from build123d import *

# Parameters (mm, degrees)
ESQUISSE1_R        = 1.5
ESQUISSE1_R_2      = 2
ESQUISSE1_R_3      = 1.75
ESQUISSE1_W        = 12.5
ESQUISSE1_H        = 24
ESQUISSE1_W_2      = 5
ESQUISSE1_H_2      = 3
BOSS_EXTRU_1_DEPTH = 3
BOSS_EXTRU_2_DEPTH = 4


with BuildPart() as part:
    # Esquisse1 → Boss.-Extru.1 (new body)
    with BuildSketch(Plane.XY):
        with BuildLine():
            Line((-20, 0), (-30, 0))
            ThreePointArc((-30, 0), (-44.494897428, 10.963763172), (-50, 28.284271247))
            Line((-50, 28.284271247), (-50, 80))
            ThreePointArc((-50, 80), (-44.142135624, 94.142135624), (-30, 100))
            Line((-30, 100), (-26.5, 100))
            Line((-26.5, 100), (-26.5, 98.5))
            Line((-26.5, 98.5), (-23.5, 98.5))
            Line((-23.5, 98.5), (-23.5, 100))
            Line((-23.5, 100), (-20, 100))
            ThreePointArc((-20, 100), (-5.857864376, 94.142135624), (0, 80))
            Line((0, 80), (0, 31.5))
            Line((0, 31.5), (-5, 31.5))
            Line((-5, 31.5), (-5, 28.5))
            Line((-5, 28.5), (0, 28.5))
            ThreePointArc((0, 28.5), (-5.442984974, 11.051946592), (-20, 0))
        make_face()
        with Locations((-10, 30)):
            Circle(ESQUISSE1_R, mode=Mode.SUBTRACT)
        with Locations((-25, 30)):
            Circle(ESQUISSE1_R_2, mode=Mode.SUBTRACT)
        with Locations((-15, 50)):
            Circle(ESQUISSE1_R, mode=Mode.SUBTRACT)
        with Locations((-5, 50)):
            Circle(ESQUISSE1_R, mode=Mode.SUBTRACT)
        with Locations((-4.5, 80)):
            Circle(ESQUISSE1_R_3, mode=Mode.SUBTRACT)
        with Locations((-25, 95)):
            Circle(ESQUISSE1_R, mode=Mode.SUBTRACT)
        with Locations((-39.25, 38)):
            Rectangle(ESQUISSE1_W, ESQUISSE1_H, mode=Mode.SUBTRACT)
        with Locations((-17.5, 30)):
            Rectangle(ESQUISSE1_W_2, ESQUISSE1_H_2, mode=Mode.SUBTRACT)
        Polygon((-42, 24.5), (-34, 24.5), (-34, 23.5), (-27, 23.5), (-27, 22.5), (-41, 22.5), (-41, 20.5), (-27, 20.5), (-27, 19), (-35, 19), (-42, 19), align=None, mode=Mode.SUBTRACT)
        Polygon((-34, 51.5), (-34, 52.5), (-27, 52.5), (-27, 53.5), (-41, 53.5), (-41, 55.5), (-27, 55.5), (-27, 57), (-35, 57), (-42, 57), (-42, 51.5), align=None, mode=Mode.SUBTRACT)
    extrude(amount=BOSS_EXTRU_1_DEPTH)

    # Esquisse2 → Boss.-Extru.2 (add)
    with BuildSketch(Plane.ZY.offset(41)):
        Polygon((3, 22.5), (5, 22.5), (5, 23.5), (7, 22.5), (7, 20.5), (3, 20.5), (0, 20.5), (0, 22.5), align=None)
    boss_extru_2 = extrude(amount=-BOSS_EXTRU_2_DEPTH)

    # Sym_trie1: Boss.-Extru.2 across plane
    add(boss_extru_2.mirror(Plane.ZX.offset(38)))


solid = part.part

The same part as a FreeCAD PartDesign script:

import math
import FreeCAD as App
import Part
import Sketcher
from FreeCAD import Vector
Q = App.Units.Quantity

doc = App.newDocument("Part")
body = doc.addObject("PartDesign::Body", "Body")

sketch1 = body.newObject("Sketcher::SketchObject", "Sketch")
sketch1.AttachmentSupport = (doc.getObject("XY_Plane"), [""])
sketch1.MapMode = "FlatFace"
sketch1.addGeometry(Part.LineSegment(Vector(-30, 0, 0), Vector(-20, 0, 0)), False)
sketch1.addGeometry(Part.ArcOfCircle(Part.Circle(Vector(-30.001327, 28.286019, 0), Vector(0, 0, 1), 30.00209), math.radians(-70.527503), math.radians(0.408649)), False)
sketch1.addGeometry(Part.LineSegment(Vector(0, 28.5, 0), Vector(-5, 28.5, 0)), False)
sketch1.addGeometry(Part.LineSegment(Vector(-5, 28.5, 0), Vector(-5, 31.5, 0)), False)
sketch1.addGeometry(Part.LineSegment(Vector(-5, 31.5, 0), Vector(0, 31.5, 0)), False)
sketch1.addGeometry(Part.LineSegment(Vector(0, 31.5, 0), Vector(0, 80, 0)), False)
sketch1.addGeometry(Part.ArcOfCircle(Part.Circle(Vector(-20, 80, 0), Vector(0, 0, 1), 20), math.radians(0), math.radians(90)), False)
sketch1.addGeometry(Part.LineSegment(Vector(-20, 100, 0), Vector(-23.5, 100, 0)), False)
sketch1.addGeometry(Part.LineSegment(Vector(-23.5, 100, 0), Vector(-23.5, 98.5, 0)), False)
sketch1.addGeometry(Part.LineSegment(Vector(-23.5, 98.5, 0), Vector(-26.5, 98.5, 0)), False)
sketch1.addGeometry(Part.LineSegment(Vector(-26.5, 98.5, 0), Vector(-26.5, 100, 0)), False)
sketch1.addGeometry(Part.LineSegment(Vector(-26.5, 100, 0), Vector(-30, 100, 0)), False)
sketch1.addGeometry(Part.ArcOfCircle(Part.Circle(Vector(-30, 80, 0), Vector(0, 0, 1), 20), math.radians(90), math.radians(180)), False)
sketch1.addGeometry(Part.LineSegment(Vector(-50, 80, 0), Vector(-50, 28.284271, 0)), False)
sketch1.addGeometry(Part.ArcOfCircle(Part.Circle(Vector(-20, 28.284271, 0), Vector(0, 0, 1), 30), math.radians(180), math.radians(250.528779)), False)
sketch1.addGeometry(Part.Circle(Vector(-10, 30, 0), Vector(0, 0, 1), 1.5), False)
sketch1.addGeometry(Part.LineSegment(Vector(-20, 28.5, 0), Vector(-20, 31.5, 0)), False)
sketch1.addGeometry(Part.LineSegment(Vector(-20, 31.5, 0), Vector(-15, 31.5, 0)), False)
sketch1.addGeometry(Part.LineSegment(Vector(-15, 31.5, 0), Vector(-15, 28.5, 0)), False)
sketch1.addGeometry(Part.LineSegment(Vector(-15, 28.5, 0), Vector(-20, 28.5, 0)), False)
sketch1.addGeometry(Part.Circle(Vector(-5, 50, 0), Vector(0, 0, 1), 1.5), False)
sketch1.addGeometry(Part.Circle(Vector(-15, 50, 0), Vector(0, 0, 1), 1.5), False)
sketch1.addGeometry(Part.LineSegment(Vector(-42, 24.5, 0), Vector(-34, 24.5, 0)), False)
sketch1.addGeometry(Part.LineSegment(Vector(-34, 24.5, 0), Vector(-34, 23.5, 0)), False)
sketch1.addGeometry(Part.LineSegment(Vector(-34, 23.5, 0), Vector(-27, 23.5, 0)), False)
sketch1.addGeometry(Part.LineSegment(Vector(-27, 23.5, 0), Vector(-27, 22.5, 0)), False)
sketch1.addGeometry(Part.LineSegment(Vector(-27, 22.5, 0), Vector(-41, 22.5, 0)), False)
sketch1.addGeometry(Part.LineSegment(Vector(-41, 22.5, 0), Vector(-41, 20.5, 0)), False)
sketch1.addGeometry(Part.LineSegment(Vector(-41, 20.5, 0), Vector(-27, 20.5, 0)), False)
sketch1.addGeometry(Part.LineSegment(Vector(-27, 20.5, 0), Vector(-27, 19, 0)), False)
sketch1.addGeometry(Part.LineSegment(Vector(-27, 19, 0), Vector(-42, 19, 0)), False)
sketch1.addGeometry(Part.LineSegment(Vector(-42, 19, 0), Vector(-42, 24.5, 0)), False)
sketch1.addGeometry(Part.Circle(Vector(-25, 30, 0), Vector(0, 0, 1), 2), False)
sketch1.addGeometry(Part.LineSegment(Vector(-45.5, 26, 0), Vector(-45.5, 50, 0)), False)
sketch1.addGeometry(Part.LineSegment(Vector(-45.5, 50, 0), Vector(-33, 50, 0)), False)
sketch1.addGeometry(Part.LineSegment(Vector(-33, 50, 0), Vector(-33, 26, 0)), False)
sketch1.addGeometry(Part.LineSegment(Vector(-33, 26, 0), Vector(-45.5, 26, 0)), False)
sketch1.addGeometry(Part.LineSegment(Vector(-34, 51.5, 0), Vector(-42, 51.5, 0)), False)
sketch1.addGeometry(Part.LineSegment(Vector(-42, 51.5, 0), Vector(-42, 57, 0)), False)
sketch1.addGeometry(Part.LineSegment(Vector(-42, 57, 0), Vector(-27, 57, 0)), False)
sketch1.addGeometry(Part.LineSegment(Vector(-27, 57, 0), Vector(-27, 55.5, 0)), False)
sketch1.addGeometry(Part.LineSegment(Vector(-27, 55.5, 0), Vector(-41, 55.5, 0)), False)
sketch1.addGeometry(Part.LineSegment(Vector(-41, 55.5, 0), Vector(-41, 53.5, 0)), False)
sketch1.addGeometry(Part.LineSegment(Vector(-41, 53.5, 0), Vector(-27, 53.5, 0)), False)
sketch1.addGeometry(Part.LineSegment(Vector(-27, 53.5, 0), Vector(-27, 52.5, 0)), False)
sketch1.addGeometry(Part.LineSegment(Vector(-27, 52.5, 0), Vector(-34, 52.5, 0)), False)
sketch1.addGeometry(Part.LineSegment(Vector(-34, 52.5, 0), Vector(-34, 51.5, 0)), False)
sketch1.addGeometry(Part.Circle(Vector(-4.5, 80, 0), Vector(0, 0, 1), 1.75), False)
sketch1.addGeometry(Part.Circle(Vector(-25, 95, 0), Vector(0, 0, 1), 1.5), False)
sketch1.addConstraint(Sketcher.Constraint("Coincident", 0, 2, 1, 1))
sketch1.addConstraint(Sketcher.Constraint("Coincident", 1, 2, 2, 1))
sketch1.addConstraint(Sketcher.Constraint("Coincident", 2, 2, 3, 1))
sketch1.addConstraint(Sketcher.Constraint("Coincident", 3, 2, 4, 1))
sketch1.addConstraint(Sketcher.Constraint("Coincident", 4, 2, 5, 1))
sketch1.addConstraint(Sketcher.Constraint("Tangent", 5, 2, 6, 1))
sketch1.addConstraint(Sketcher.Constraint("Tangent", 6, 2, 7, 1))
sketch1.addConstraint(Sketcher.Constraint("Coincident", 7, 2, 8, 1))
sketch1.addConstraint(Sketcher.Constraint("Coincident", 8, 2, 9, 1))
sketch1.addConstraint(Sketcher.Constraint("Coincident", 9, 2, 10, 1))
sketch1.addConstraint(Sketcher.Constraint("Coincident", 10, 2, 11, 1))
sketch1.addConstraint(Sketcher.Constraint("Tangent", 11, 2, 12, 1))
sketch1.addConstraint(Sketcher.Constraint("Tangent", 12, 2, 13, 1))
sketch1.addConstraint(Sketcher.Constraint("Tangent", 13, 2, 14, 1))
sketch1.addConstraint(Sketcher.Constraint("Coincident", 14, 2, 0, 1))
sketch1.addConstraint(Sketcher.Constraint("Coincident", 16, 2, 17, 1))
sketch1.addConstraint(Sketcher.Constraint("Coincident", 17, 2, 18, 1))
sketch1.addConstraint(Sketcher.Constraint("Coincident", 18, 2, 19, 1))
sketch1.addConstraint(Sketcher.Constraint("Coincident", 19, 2, 16, 1))
sketch1.addConstraint(Sketcher.Constraint("Coincident", 22, 2, 23, 1))
sketch1.addConstraint(Sketcher.Constraint("Coincident", 23, 2, 24, 1))
sketch1.addConstraint(Sketcher.Constraint("Coincident", 24, 2, 25, 1))
sketch1.addConstraint(Sketcher.Constraint("Coincident", 25, 2, 26, 1))
sketch1.addConstraint(Sketcher.Constraint("Coincident", 26, 2, 27, 1))
sketch1.addConstraint(Sketcher.Constraint("Coincident", 27, 2, 28, 1))
sketch1.addConstraint(Sketcher.Constraint("Coincident", 28, 2, 29, 1))
sketch1.addConstraint(Sketcher.Constraint("Coincident", 29, 2, 30, 1))
sketch1.addConstraint(Sketcher.Constraint("Coincident", 30, 2, 31, 1))
sketch1.addConstraint(Sketcher.Constraint("Coincident", 31, 2, 22, 1))
sketch1.addConstraint(Sketcher.Constraint("Coincident", 33, 2, 34, 1))
sketch1.addConstraint(Sketcher.Constraint("Coincident", 34, 2, 35, 1))
sketch1.addConstraint(Sketcher.Constraint("Coincident", 35, 2, 36, 1))
sketch1.addConstraint(Sketcher.Constraint("Coincident", 36, 2, 33, 1))
sketch1.addConstraint(Sketcher.Constraint("Coincident", 37, 2, 38, 1))
sketch1.addConstraint(Sketcher.Constraint("Coincident", 38, 2, 39, 1))
sketch1.addConstraint(Sketcher.Constraint("Coincident", 39, 2, 40, 1))
sketch1.addConstraint(Sketcher.Constraint("Coincident", 40, 2, 41, 1))
sketch1.addConstraint(Sketcher.Constraint("Coincident", 41, 2, 42, 1))
sketch1.addConstraint(Sketcher.Constraint("Coincident", 42, 2, 43, 1))
sketch1.addConstraint(Sketcher.Constraint("Coincident", 43, 2, 44, 1))
sketch1.addConstraint(Sketcher.Constraint("Coincident", 44, 2, 45, 1))
sketch1.addConstraint(Sketcher.Constraint("Coincident", 45, 2, 46, 1))
sketch1.addConstraint(Sketcher.Constraint("Coincident", 46, 2, 37, 1))
sketch1.addConstraint(Sketcher.Constraint("Horizontal", 0))
sketch1.addConstraint(Sketcher.Constraint("Horizontal", 2))
sketch1.addConstraint(Sketcher.Constraint("Vertical", 3))
sketch1.addConstraint(Sketcher.Constraint("Horizontal", 4))
sketch1.addConstraint(Sketcher.Constraint("Vertical", 5))
sketch1.addConstraint(Sketcher.Constraint("Horizontal", 7))
sketch1.addConstraint(Sketcher.Constraint("Vertical", 8))
sketch1.addConstraint(Sketcher.Constraint("Horizontal", 9))
sketch1.addConstraint(Sketcher.Constraint("Vertical", 10))
sketch1.addConstraint(Sketcher.Constraint("Horizontal", 11))
sketch1.addConstraint(Sketcher.Constraint("Vertical", 13))
sketch1.addConstraint(Sketcher.Constraint("Vertical", 16))
sketch1.addConstraint(Sketcher.Constraint("Horizontal", 17))
sketch1.addConstraint(Sketcher.Constraint("Vertical", 18))
sketch1.addConstraint(Sketcher.Constraint("Horizontal", 19))
sketch1.addConstraint(Sketcher.Constraint("Horizontal", 22))
sketch1.addConstraint(Sketcher.Constraint("Vertical", 23))
sketch1.addConstraint(Sketcher.Constraint("Horizontal", 24))
sketch1.addConstraint(Sketcher.Constraint("Vertical", 25))
sketch1.addConstraint(Sketcher.Constraint("Horizontal", 26))
sketch1.addConstraint(Sketcher.Constraint("Vertical", 27))
sketch1.addConstraint(Sketcher.Constraint("Horizontal", 28))
sketch1.addConstraint(Sketcher.Constraint("Vertical", 29))
sketch1.addConstraint(Sketcher.Constraint("Horizontal", 30))
sketch1.addConstraint(Sketcher.Constraint("Vertical", 31))
sketch1.addConstraint(Sketcher.Constraint("Vertical", 33))
sketch1.addConstraint(Sketcher.Constraint("Horizontal", 34))
sketch1.addConstraint(Sketcher.Constraint("Vertical", 35))
sketch1.addConstraint(Sketcher.Constraint("Horizontal", 36))
sketch1.addConstraint(Sketcher.Constraint("Horizontal", 37))
sketch1.addConstraint(Sketcher.Constraint("Vertical", 38))
sketch1.addConstraint(Sketcher.Constraint("Horizontal", 39))
sketch1.addConstraint(Sketcher.Constraint("Vertical", 40))
sketch1.addConstraint(Sketcher.Constraint("Horizontal", 41))
sketch1.addConstraint(Sketcher.Constraint("Vertical", 42))
sketch1.addConstraint(Sketcher.Constraint("Horizontal", 43))
sketch1.addConstraint(Sketcher.Constraint("Vertical", 44))
sketch1.addConstraint(Sketcher.Constraint("Horizontal", 45))
sketch1.addConstraint(Sketcher.Constraint("Vertical", 46))
sketch1.addConstraint(Sketcher.Constraint("Equal", 6, 12))
sketch1.addConstraint(Sketcher.Constraint("Equal", 15, 20))
sketch1.addConstraint(Sketcher.Constraint("Equal", 20, 21))
sketch1.addConstraint(Sketcher.Constraint("Equal", 21, 48))
sketch1.addConstraint(Sketcher.Constraint("PointOnObject", 0, 2, -1))
sketch1.addConstraint(Sketcher.Constraint("PointOnObject", 1, 2, -2))
sketch1.addConstraint(Sketcher.Constraint("PointOnObject", 4, 2, -2))
sketch1.addConstraint(Sketcher.Constraint("Horizontal", 6, 3, 12, 3))
sketch1.addConstraint(Sketcher.Constraint("Horizontal", 20, 3, 21, 3))
sketch1.addConstraint(Sketcher.Constraint("Horizontal", 15, 3, 32, 3))
sketch1.addConstraint(Sketcher.Constraint("Horizontal", 12, 3, 47, 3))
sketch1.addConstraint(Sketcher.Constraint("Horizontal", 4, 2, 16, 2))
sketch1.addConstraint(Sketcher.Constraint("Horizontal", 2, 2, 18, 2))
sketch1.addConstraint(Sketcher.Constraint("Horizontal", 21, 3, 33, 2))
sketch1.addConstraint(Sketcher.Constraint("Vertical", 6, 3, 14, 3))
sketch1.addConstraint(Sketcher.Constraint("Vertical", 32, 3, 48, 3))
sketch1.addConstraint(Sketcher.Constraint("Vertical", 14, 3, 0, 2))
sketch1.addConstraint(Sketcher.Constraint("Vertical", 20, 3, 2, 2))
sketch1.addConstraint(Sketcher.Constraint("Vertical", 11, 2, 14, 2))
sketch1.addConstraint(Sketcher.Constraint("Vertical", 6, 2, 16, 2))
sketch1.addConstraint(Sketcher.Constraint("Vertical", 21, 3, 17, 2))
sketch1.addConstraint(Sketcher.Constraint("Vertical", 25, 2, 28, 2))
sketch1.addConstraint(Sketcher.Constraint("Vertical", 31, 2, 37, 2))
sketch1.addConstraint(Sketcher.Constraint("Vertical", 29, 2, 39, 2))
sketch1.addConstraint(Sketcher.Constraint("Vertical", 27, 2, 41, 2))
sketch1.addConstraint(Sketcher.Constraint("Vertical", 40, 2, 43, 2))
sketch1.addConstraint(Sketcher.Constraint("Vertical", 23, 2, 45, 2))
sketch1.addConstraint(Sketcher.Constraint("Equal", 7, 11))
sketch1.addConstraint(Sketcher.Constraint("Equal", 4, 17))
sketch1.addConstraint(Sketcher.Constraint("Equal", 9, 3))
sketch1.addConstraint(Sketcher.Constraint("Equal", 23, 25))
sketch1.addConstraint(Sketcher.Constraint("Equal", 10, 29))
sketch1.addConstraint(Sketcher.Constraint("Equal", 31, 38))
sketch1.addConstraint(Sketcher.Constraint("Equal", 29, 40))
sketch1.addConstraint(Sketcher.Constraint("Equal", 27, 42))
sketch1.addConstraint(Sketcher.Constraint("Equal", 25, 44))
sketch1.addConstraint(Sketcher.Constraint("Diameter", 15, Q("3 mm")))
sketch1.addConstraint(Sketcher.Constraint("Diameter", 32, Q("4 mm")))
sketch1.addConstraint(Sketcher.Constraint("Radius", 6, Q("20 mm")))
sketch1.addConstraint(Sketcher.Constraint("Radius", 14, Q("30 mm")))
sketch1.addConstraint(Sketcher.Constraint("Diameter", 47, Q("3.5 mm")))
sketch1.addConstraint(Sketcher.Constraint("DistanceX", 2, 2, 2, 1, Q("5 mm")))
sketch1.addConstraint(Sketcher.Constraint("DistanceX", 9, 2, 9, 1, Q("3 mm")))
sketch1.addConstraint(Sketcher.Constraint("DistanceX", 22, 1, 22, 2, Q("8 mm")))
sketch1.addConstraint(Sketcher.Constraint("DistanceX", 24, 1, 24, 2, Q("7 mm")))
sketch1.addConstraint(Sketcher.Constraint("DistanceX", 26, 2, 26, 1, Q("14 mm")))
sketch1.addConstraint(Sketcher.Constraint("DistanceY", 23, 2, 23, 1, Q("1 mm")))
sketch1.addConstraint(Sketcher.Constraint("DistanceY", 27, 2, 27, 1, Q("2 mm")))
sketch1.addConstraint(Sketcher.Constraint("DistanceY", 33, 1, 33, 2, Q("24 mm")))
sketch1.addConstraint(Sketcher.Constraint("DistanceX", 34, 1, 34, 2, Q("12.5 mm")))
sketch1.addConstraint(Sketcher.Constraint("DistanceY", 5, 1, 5, 2, Q("48.5 mm")))
sketch1.addConstraint(Sketcher.Constraint("DistanceY", 8, 2, 8, 1, Q("1.5 mm")))
sketch1.addConstraint(Sketcher.Constraint("DistanceY", -1, 1, 6, 3, Q("80 mm")))
sketch1.addConstraint(Sketcher.Constraint("DistanceX", 15, 3, -1, 1, Q("10 mm")))
sketch1.addConstraint(Sketcher.Constraint("DistanceY", -1, 1, 15, 3, Q("30 mm")))
sketch1.addConstraint(Sketcher.Constraint("DistanceY", -1, 1, 20, 3, Q("50 mm")))
sketch1.addConstraint(Sketcher.Constraint("DistanceX", 32, 3, -1, 1, Q("25 mm")))
sketch1.addConstraint(Sketcher.Constraint("DistanceY", -1, 1, 48, 3, Q("95 mm")))
sketch1.addConstraint(Sketcher.Constraint("DistanceX", 22, 2, -1, 1, Q("34 mm")))
sketch1.addConstraint(Sketcher.Constraint("DistanceY", -1, 1, 29, 2, Q("19 mm")))
sketch1.addConstraint(Sketcher.Constraint("DistanceX", 34, 2, -1, 1, Q("33 mm")))
sketch1.addConstraint(Sketcher.Constraint("DistanceY", -1, 1, 38, 2, Q("57 mm")))
sketch1.addConstraint(Sketcher.Constraint("DistanceX", 7, 2, 47, 3, Q("19 mm")))
sketch1.addConstraint(Sketcher.Constraint("Radius", 1, Q("30.00209 mm")))
pad1 = body.newObject("PartDesign::Pad", "Pad")
pad1.Profile = sketch1
pad1.Length = 3

sketch2 = body.newObject("Sketcher::SketchObject", "Sketch001")
sketch2.AttachmentSupport = (doc.getObject("YZ_Plane"), [""])
sketch2.MapMode = "FlatFace"
sketch2.AttachmentOffset = App.Placement(Vector(0, 0, -41), App.Rotation())
sketch2.addGeometry(Part.LineSegment(Vector(22.5, 5, 0), Vector(22.5, 0, 0)), False)
sketch2.addGeometry(Part.LineSegment(Vector(22.5, 0, 0), Vector(20.5, 0, 0)), False)
sketch2.addGeometry(Part.LineSegment(Vector(20.5, 0, 0), Vector(20.5, 7, 0)), False)
sketch2.addGeometry(Part.LineSegment(Vector(20.5, 7, 0), Vector(22.5, 7, 0)), False)
sketch2.addGeometry(Part.LineSegment(Vector(22.5, 7, 0), Vector(23.5, 5, 0)), False)
sketch2.addGeometry(Part.LineSegment(Vector(23.5, 5, 0), Vector(22.5, 5, 0)), False)
sketch2.addConstraint(Sketcher.Constraint("Coincident", 0, 2, 1, 1))
sketch2.addConstraint(Sketcher.Constraint("Coincident", 1, 2, 2, 1))
sketch2.addConstraint(Sketcher.Constraint("Coincident", 2, 2, 3, 1))
sketch2.addConstraint(Sketcher.Constraint("Coincident", 3, 2, 4, 1))
sketch2.addConstraint(Sketcher.Constraint("Coincident", 4, 2, 5, 1))
sketch2.addConstraint(Sketcher.Constraint("Coincident", 5, 2, 0, 1))
sketch2.addConstraint(Sketcher.Constraint("Vertical", 0))
sketch2.addConstraint(Sketcher.Constraint("Horizontal", 1))
sketch2.addConstraint(Sketcher.Constraint("Vertical", 2))
sketch2.addConstraint(Sketcher.Constraint("Horizontal", 3))
sketch2.addConstraint(Sketcher.Constraint("Horizontal", 5))
sketch2.addConstraint(Sketcher.Constraint("PointOnObject", 0, 2, -1))
sketch2.addConstraint(Sketcher.Constraint("Vertical", 0, 2, 3, 2))
sketch2.addConstraint(Sketcher.Constraint("DistanceX", 1, 2, 1, 1, Q("2 mm")))
sketch2.addConstraint(Sketcher.Constraint("DistanceX", 5, 2, 5, 1, Q("1 mm")))
sketch2.addConstraint(Sketcher.Constraint("DistanceY", 0, 2, 0, 1, Q("5 mm")))
sketch2.addConstraint(Sketcher.Constraint("DistanceY", 2, 1, 2, 2, Q("7 mm")))
sketch2.addConstraint(Sketcher.Constraint("DistanceX", -1, 1, 0, 2, Q("22.5 mm")))
pad2 = body.newObject("PartDesign::Pad", "Pad001")
pad2.Profile = sketch2
pad2.Length = 4
doc.recompute()

datumplane = body.newObject("PartDesign::Plane", "DatumPlane")
datumplane.AttachmentSupport = (doc.getObject("XZ_Plane"), [""])
datumplane.MapMode = "FlatFace"
datumplane.AttachmentOffset = App.Placement(Vector(0, 0, -38), App.Rotation())
mirrored = body.newObject("PartDesign::Mirrored", "Mirrored")
mirrored.Originals = [pad2]
mirrored.MirrorPlane = (datumplane, [""])
body.Tip = mirrored

doc.recompute()
